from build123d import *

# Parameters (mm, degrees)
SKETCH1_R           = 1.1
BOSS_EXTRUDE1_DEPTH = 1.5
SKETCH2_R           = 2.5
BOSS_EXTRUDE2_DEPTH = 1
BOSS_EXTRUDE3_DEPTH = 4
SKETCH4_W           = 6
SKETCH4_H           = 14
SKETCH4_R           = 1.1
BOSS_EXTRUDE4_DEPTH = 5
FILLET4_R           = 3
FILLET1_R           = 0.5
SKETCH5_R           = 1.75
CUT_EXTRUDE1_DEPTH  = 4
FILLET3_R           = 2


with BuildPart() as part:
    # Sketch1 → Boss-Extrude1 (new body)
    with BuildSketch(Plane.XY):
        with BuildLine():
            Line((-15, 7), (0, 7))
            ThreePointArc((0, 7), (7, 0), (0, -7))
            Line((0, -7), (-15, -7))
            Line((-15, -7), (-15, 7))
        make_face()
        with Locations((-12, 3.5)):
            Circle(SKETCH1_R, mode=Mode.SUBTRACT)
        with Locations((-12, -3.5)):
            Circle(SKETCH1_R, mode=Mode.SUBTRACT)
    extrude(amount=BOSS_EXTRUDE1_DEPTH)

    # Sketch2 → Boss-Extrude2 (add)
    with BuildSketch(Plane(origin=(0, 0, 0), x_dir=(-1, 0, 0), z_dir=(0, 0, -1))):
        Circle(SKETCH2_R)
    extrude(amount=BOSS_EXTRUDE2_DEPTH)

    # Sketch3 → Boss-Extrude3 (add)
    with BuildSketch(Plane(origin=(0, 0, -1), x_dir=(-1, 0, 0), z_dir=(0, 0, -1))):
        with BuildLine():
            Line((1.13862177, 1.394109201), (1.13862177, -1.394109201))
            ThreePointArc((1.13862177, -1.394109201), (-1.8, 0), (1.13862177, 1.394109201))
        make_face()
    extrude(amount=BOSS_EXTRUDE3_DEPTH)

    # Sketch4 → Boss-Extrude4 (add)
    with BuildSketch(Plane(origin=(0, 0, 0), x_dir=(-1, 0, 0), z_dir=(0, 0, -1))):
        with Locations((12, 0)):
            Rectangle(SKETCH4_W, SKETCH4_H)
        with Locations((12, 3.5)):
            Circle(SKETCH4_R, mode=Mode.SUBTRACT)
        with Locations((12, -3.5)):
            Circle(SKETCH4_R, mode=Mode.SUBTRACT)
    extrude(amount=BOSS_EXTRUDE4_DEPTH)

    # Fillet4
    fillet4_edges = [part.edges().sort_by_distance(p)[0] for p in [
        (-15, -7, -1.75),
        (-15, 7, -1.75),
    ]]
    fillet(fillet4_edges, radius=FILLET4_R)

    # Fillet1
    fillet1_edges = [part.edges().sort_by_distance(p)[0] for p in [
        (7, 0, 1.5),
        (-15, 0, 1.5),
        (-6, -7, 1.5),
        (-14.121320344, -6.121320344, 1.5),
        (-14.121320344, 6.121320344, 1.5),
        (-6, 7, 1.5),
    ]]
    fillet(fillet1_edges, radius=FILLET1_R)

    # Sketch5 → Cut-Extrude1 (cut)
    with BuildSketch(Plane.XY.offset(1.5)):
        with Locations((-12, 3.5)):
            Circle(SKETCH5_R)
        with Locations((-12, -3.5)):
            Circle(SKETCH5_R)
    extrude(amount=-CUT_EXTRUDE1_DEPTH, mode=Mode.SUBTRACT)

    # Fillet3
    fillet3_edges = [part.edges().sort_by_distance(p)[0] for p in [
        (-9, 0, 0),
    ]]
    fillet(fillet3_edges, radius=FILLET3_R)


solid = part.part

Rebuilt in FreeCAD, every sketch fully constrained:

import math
import FreeCAD as App
import Part
import Sketcher


def edges_at(feature, points):
    """Names of the edges that pass closest to the given points."""
    edges = feature.Shape.Edges
    near = lambda p: min(range(len(edges)), key=lambda i: edges[i].distToShape(Part.Vertex(*p))[0])
    return sorted({f"Edge{near(p) + 1}" for p in points})


def add_polygon(sketch, points):
    """Adds a closed chain of lines whose ends are joined by coincident constraints."""
    first, n = sketch.GeometryCount, len(points)
    for a, b in zip(points, points[1:] + points[:1]):
        sketch.addGeometry(Part.LineSegment(App.Vector(*a, 0), App.Vector(*b, 0)), False)
    for i in range(n):
        sketch.addConstraint(Sketcher.Constraint("Coincident", first + i, 2, first + (i + 1) % n, 1))

doc = App.newDocument("Part")
body = doc.addObject("PartDesign::Body", "Body")

# Sketch on XY plane
sketch1 = doc.addObject("Sketcher::SketchObject", "Sketch")
body.addObject(sketch1)
sketch1.AttachmentSupport = (doc.XY_Plane, [""])
sketch1.MapMode = "FlatFace"
sketch1.addGeometry([
    Part.LineSegment(App.Vector(0, 7, 0), App.Vector(-15, 7, 0)),  # 0
    Part.LineSegment(App.Vector(-15, 7, 0), App.Vector(-15, -7, 0)),  # 1
    Part.LineSegment(App.Vector(-15, -7, 0), App.Vector(0, -7, 0)),  # 2
    Part.ArcOfCircle(Part.Circle(App.Vector(0, 0, 0), App.Vector(0, 0, 1), 7), math.radians(-90), math.radians(90)),  # 3
    Part.Circle(App.Vector(-12, -3.5, 0), App.Vector(0, 0, 1), 1.1),  # 4
    Part.Circle(App.Vector(-12, 3.5, 0), App.Vector(0, 0, 1), 1.1),  # 5
], False)
sketch1.addConstraint([
    Sketcher.Constraint("Coincident", 0, 2, 1, 1),
    Sketcher.Constraint("Coincident", 1, 2, 2, 1),
    Sketcher.Constraint("Tangent", 2, 2, 3, 1),
    Sketcher.Constraint("Tangent", 3, 2, 0, 1),
    Sketcher.Constraint("Horizontal", 0),
    Sketcher.Constraint("Vertical", 1),
    Sketcher.Constraint("Horizontal", 2),
    Sketcher.Constraint("Coincident", 3, 3, -1, 1),
    Sketcher.Constraint("Equal", 4, 5),
    Sketcher.Constraint("Symmetric", 4, 3, 5, 3, -1),
    Sketcher.Constraint("Radius", 3, 7.0),
    Sketcher.Constraint("Diameter", 4, 2.2),
    Sketcher.Constraint("DistanceX", 0, 2, 0, 1, 15.0),
    Sketcher.Constraint("DistanceX", 4, 3, -1, 1, 12.0),
    Sketcher.Constraint("DistanceY", 4, 3, 5, 3, 7.0),
])
pad1 = doc.addObject("PartDesign::Pad", "Pad")
body.addObject(pad1)
pad1.Profile = sketch1
pad1.Length = 1.5

# Sketch on XY plane
sketch2 = doc.addObject("Sketcher::SketchObject", "Sketch001")
body.addObject(sketch2)
sketch2.AttachmentSupport = (doc.XY_Plane, [""])
sketch2.MapMode = "FlatFace"
sketch2.addGeometry(Part.Circle(App.Vector(0, 0, 0), App.Vector(0, 0, 1), 2.5), False)
sketch2.addConstraint([
    Sketcher.Constraint("Coincident", 0, 3, -1, 1),
    Sketcher.Constraint("Diameter", 0, 5.0),
])
pad2 = doc.addObject("PartDesign::Pad", "Pad001")
body.addObject(pad2)
pad2.Profile = sketch2
pad2.Length = 1
pad2.Reversed = True

# Sketch on XY plane
sketch3 = doc.addObject("Sketcher::SketchObject", "Sketch002")
body.addObject(sketch3)
sketch3.AttachmentSupport = (doc.XY_Plane, [""])
sketch3.MapMode = "FlatFace"
sketch3.AttachmentOffset = App.Placement(App.Vector(0, 0, -1), App.Rotation())
sketch3.addGeometry([
    Part.LineSegment(App.Vector(-1.1, -1.4, 0), App.Vector(-1.1, 1.4, 0)),
    Part.ArcOfCircle(Part.Circle(App.Vector(0, 0, 0), App.Vector(0, 0, 1), 1.8), math.radians(-129), math.radians(129)),
], False)
sketch3.addConstraint([
    Sketcher.Constraint("Coincident", 0, 1, 1, 1),
    Sketcher.Constraint("Coincident", 1, 2, 0, 2),
    Sketcher.Constraint("Vertical", 0),
    Sketcher.Constraint("Coincident", 1, 3, -1, 1),
    Sketcher.Constraint("Radius", 1, 1.8),
    Sketcher.Constraint("DistanceY", 0, 1, 0, 2, 2.788218),
])
pad3 = doc.addObject("PartDesign::Pad", "Pad002")
body.addObject(pad3)
pad3.Profile = sketch3
pad3.Length = 4
pad3.Reversed = True

# Sketch on XY plane
sketch4 = doc.addObject("Sketcher::SketchObject", "Sketch003")
body.addObject(sketch4)
sketch4.AttachmentSupport = (doc.XY_Plane, [""])
sketch4.MapMode = "FlatFace"
add_polygon(sketch4, [(-9, 7), (-9, -7), (-15, -7), (-15, 7)])  # lines 0-3
sketch4.addGeometry(Part.Circle(App.Vector(-12, -3.5, 0), App.Vector(0, 0, 1), 1.1), False)  # 4
sketch4.addGeometry(Part.Circle(App.Vector(-12, 3.5, 0), App.Vector(0, 0, 1), 1.1), False)  # 5
sketch4.addConstraint([
    Sketcher.Constraint("Vertical", 0),
    Sketcher.Constraint("Horizontal", 1),
    Sketcher.Constraint("Vertical", 2),
    Sketcher.Constraint("Horizontal", 3),
    Sketcher.Constraint("Equal", 4, 5),
    Sketcher.Constraint("Symmetric", 4, 3, 5, 3, -1),
    Sketcher.Constraint("Diameter", 4, 2.2),
    Sketcher.Constraint("DistanceX", 1, 2, 1, 1, 6.0),
    Sketcher.Constraint("DistanceY", 0, 2, 0, 1, 14.0),
    Sketcher.Constraint("DistanceX", 4, 3, -1, 1, 12.0),
    Sketcher.Constraint("DistanceX", 0, 2, -1, 1, 9.0),
    Sketcher.Constraint("DistanceY", 0, 2, -1, 1, 7.0),
    Sketcher.Constraint("DistanceY", 4, 3, 5, 3, 7.0),
])
pad4 = doc.addObject("PartDesign::Pad", "Pad003")
body.addObject(pad4)
pad4.Profile = sketch4
pad4.Length = 5
pad4.Reversed = True
doc.recompute()

fillet = doc.addObject("PartDesign::Fillet", "Fillet")
body.addObject(fillet)
fillet.Base = (pad4, edges_at(pad4, [(-15, -7, -1.75), (-15, 7, -1.75)]))
fillet.Radius = 3
doc.recompute()

fillet2 = doc.addObject("PartDesign::Fillet", "Fillet001")
body.addObject(fillet2)
fillet2.Base = (fillet, edges_at(fillet, [
    (7, 0, 1.5),
    (-15, 0, 1.5),
    (-6, -7, 1.5),
    (-14.121, -6.121, 1.5),
    (-14.121, 6.121, 1.5),
    (-6, 7, 1.5),
]))
fillet2.Radius = 0.5

# Sketch on XY plane
sketch5 = doc.addObject("Sketcher::SketchObject", "Sketch004")
body.addObject(sketch5)
sketch5.AttachmentSupport = (doc.XY_Plane, [""])
sketch5.MapMode = "FlatFace"
sketch5.AttachmentOffset = App.Placement(App.Vector(0, 0, 1.5), App.Rotation())
sketch5.addGeometry([
    Part.Circle(App.Vector(-12, 3.5, 0), App.Vector(0, 0, 1), 1.8),
    Part.Circle(App.Vector(-12, -3.5, 0), App.Vector(0, 0, 1), 1.8),
], False)
sketch5.addConstraint([
    Sketcher.Constraint("Equal", 0, 1),
    Sketcher.Constraint("Symmetric", 0, 3, 1, 3, -1),
    Sketcher.Constraint("Diameter", 0, 3.5),
    Sketcher.Constraint("DistanceX", 0, 3, -1, 1, 12.0),
    Sketcher.Constraint("DistanceY", 1, 3, 0, 3, 7.0),
])
pocket1 = doc.addObject("PartDesign::Pocket", "Pocket")
body.addObject(pocket1)
pocket1.Profile = sketch5
pocket1.Length = 4
doc.recompute()

fillet3 = doc.addObject("PartDesign::Fillet", "Fillet002")
body.addObject(fillet3)
fillet3.Base = (pocket1, edges_at(pocket1, [(-9, 0, 0)]))
fillet3.Radius = 2

doc.recompute()
